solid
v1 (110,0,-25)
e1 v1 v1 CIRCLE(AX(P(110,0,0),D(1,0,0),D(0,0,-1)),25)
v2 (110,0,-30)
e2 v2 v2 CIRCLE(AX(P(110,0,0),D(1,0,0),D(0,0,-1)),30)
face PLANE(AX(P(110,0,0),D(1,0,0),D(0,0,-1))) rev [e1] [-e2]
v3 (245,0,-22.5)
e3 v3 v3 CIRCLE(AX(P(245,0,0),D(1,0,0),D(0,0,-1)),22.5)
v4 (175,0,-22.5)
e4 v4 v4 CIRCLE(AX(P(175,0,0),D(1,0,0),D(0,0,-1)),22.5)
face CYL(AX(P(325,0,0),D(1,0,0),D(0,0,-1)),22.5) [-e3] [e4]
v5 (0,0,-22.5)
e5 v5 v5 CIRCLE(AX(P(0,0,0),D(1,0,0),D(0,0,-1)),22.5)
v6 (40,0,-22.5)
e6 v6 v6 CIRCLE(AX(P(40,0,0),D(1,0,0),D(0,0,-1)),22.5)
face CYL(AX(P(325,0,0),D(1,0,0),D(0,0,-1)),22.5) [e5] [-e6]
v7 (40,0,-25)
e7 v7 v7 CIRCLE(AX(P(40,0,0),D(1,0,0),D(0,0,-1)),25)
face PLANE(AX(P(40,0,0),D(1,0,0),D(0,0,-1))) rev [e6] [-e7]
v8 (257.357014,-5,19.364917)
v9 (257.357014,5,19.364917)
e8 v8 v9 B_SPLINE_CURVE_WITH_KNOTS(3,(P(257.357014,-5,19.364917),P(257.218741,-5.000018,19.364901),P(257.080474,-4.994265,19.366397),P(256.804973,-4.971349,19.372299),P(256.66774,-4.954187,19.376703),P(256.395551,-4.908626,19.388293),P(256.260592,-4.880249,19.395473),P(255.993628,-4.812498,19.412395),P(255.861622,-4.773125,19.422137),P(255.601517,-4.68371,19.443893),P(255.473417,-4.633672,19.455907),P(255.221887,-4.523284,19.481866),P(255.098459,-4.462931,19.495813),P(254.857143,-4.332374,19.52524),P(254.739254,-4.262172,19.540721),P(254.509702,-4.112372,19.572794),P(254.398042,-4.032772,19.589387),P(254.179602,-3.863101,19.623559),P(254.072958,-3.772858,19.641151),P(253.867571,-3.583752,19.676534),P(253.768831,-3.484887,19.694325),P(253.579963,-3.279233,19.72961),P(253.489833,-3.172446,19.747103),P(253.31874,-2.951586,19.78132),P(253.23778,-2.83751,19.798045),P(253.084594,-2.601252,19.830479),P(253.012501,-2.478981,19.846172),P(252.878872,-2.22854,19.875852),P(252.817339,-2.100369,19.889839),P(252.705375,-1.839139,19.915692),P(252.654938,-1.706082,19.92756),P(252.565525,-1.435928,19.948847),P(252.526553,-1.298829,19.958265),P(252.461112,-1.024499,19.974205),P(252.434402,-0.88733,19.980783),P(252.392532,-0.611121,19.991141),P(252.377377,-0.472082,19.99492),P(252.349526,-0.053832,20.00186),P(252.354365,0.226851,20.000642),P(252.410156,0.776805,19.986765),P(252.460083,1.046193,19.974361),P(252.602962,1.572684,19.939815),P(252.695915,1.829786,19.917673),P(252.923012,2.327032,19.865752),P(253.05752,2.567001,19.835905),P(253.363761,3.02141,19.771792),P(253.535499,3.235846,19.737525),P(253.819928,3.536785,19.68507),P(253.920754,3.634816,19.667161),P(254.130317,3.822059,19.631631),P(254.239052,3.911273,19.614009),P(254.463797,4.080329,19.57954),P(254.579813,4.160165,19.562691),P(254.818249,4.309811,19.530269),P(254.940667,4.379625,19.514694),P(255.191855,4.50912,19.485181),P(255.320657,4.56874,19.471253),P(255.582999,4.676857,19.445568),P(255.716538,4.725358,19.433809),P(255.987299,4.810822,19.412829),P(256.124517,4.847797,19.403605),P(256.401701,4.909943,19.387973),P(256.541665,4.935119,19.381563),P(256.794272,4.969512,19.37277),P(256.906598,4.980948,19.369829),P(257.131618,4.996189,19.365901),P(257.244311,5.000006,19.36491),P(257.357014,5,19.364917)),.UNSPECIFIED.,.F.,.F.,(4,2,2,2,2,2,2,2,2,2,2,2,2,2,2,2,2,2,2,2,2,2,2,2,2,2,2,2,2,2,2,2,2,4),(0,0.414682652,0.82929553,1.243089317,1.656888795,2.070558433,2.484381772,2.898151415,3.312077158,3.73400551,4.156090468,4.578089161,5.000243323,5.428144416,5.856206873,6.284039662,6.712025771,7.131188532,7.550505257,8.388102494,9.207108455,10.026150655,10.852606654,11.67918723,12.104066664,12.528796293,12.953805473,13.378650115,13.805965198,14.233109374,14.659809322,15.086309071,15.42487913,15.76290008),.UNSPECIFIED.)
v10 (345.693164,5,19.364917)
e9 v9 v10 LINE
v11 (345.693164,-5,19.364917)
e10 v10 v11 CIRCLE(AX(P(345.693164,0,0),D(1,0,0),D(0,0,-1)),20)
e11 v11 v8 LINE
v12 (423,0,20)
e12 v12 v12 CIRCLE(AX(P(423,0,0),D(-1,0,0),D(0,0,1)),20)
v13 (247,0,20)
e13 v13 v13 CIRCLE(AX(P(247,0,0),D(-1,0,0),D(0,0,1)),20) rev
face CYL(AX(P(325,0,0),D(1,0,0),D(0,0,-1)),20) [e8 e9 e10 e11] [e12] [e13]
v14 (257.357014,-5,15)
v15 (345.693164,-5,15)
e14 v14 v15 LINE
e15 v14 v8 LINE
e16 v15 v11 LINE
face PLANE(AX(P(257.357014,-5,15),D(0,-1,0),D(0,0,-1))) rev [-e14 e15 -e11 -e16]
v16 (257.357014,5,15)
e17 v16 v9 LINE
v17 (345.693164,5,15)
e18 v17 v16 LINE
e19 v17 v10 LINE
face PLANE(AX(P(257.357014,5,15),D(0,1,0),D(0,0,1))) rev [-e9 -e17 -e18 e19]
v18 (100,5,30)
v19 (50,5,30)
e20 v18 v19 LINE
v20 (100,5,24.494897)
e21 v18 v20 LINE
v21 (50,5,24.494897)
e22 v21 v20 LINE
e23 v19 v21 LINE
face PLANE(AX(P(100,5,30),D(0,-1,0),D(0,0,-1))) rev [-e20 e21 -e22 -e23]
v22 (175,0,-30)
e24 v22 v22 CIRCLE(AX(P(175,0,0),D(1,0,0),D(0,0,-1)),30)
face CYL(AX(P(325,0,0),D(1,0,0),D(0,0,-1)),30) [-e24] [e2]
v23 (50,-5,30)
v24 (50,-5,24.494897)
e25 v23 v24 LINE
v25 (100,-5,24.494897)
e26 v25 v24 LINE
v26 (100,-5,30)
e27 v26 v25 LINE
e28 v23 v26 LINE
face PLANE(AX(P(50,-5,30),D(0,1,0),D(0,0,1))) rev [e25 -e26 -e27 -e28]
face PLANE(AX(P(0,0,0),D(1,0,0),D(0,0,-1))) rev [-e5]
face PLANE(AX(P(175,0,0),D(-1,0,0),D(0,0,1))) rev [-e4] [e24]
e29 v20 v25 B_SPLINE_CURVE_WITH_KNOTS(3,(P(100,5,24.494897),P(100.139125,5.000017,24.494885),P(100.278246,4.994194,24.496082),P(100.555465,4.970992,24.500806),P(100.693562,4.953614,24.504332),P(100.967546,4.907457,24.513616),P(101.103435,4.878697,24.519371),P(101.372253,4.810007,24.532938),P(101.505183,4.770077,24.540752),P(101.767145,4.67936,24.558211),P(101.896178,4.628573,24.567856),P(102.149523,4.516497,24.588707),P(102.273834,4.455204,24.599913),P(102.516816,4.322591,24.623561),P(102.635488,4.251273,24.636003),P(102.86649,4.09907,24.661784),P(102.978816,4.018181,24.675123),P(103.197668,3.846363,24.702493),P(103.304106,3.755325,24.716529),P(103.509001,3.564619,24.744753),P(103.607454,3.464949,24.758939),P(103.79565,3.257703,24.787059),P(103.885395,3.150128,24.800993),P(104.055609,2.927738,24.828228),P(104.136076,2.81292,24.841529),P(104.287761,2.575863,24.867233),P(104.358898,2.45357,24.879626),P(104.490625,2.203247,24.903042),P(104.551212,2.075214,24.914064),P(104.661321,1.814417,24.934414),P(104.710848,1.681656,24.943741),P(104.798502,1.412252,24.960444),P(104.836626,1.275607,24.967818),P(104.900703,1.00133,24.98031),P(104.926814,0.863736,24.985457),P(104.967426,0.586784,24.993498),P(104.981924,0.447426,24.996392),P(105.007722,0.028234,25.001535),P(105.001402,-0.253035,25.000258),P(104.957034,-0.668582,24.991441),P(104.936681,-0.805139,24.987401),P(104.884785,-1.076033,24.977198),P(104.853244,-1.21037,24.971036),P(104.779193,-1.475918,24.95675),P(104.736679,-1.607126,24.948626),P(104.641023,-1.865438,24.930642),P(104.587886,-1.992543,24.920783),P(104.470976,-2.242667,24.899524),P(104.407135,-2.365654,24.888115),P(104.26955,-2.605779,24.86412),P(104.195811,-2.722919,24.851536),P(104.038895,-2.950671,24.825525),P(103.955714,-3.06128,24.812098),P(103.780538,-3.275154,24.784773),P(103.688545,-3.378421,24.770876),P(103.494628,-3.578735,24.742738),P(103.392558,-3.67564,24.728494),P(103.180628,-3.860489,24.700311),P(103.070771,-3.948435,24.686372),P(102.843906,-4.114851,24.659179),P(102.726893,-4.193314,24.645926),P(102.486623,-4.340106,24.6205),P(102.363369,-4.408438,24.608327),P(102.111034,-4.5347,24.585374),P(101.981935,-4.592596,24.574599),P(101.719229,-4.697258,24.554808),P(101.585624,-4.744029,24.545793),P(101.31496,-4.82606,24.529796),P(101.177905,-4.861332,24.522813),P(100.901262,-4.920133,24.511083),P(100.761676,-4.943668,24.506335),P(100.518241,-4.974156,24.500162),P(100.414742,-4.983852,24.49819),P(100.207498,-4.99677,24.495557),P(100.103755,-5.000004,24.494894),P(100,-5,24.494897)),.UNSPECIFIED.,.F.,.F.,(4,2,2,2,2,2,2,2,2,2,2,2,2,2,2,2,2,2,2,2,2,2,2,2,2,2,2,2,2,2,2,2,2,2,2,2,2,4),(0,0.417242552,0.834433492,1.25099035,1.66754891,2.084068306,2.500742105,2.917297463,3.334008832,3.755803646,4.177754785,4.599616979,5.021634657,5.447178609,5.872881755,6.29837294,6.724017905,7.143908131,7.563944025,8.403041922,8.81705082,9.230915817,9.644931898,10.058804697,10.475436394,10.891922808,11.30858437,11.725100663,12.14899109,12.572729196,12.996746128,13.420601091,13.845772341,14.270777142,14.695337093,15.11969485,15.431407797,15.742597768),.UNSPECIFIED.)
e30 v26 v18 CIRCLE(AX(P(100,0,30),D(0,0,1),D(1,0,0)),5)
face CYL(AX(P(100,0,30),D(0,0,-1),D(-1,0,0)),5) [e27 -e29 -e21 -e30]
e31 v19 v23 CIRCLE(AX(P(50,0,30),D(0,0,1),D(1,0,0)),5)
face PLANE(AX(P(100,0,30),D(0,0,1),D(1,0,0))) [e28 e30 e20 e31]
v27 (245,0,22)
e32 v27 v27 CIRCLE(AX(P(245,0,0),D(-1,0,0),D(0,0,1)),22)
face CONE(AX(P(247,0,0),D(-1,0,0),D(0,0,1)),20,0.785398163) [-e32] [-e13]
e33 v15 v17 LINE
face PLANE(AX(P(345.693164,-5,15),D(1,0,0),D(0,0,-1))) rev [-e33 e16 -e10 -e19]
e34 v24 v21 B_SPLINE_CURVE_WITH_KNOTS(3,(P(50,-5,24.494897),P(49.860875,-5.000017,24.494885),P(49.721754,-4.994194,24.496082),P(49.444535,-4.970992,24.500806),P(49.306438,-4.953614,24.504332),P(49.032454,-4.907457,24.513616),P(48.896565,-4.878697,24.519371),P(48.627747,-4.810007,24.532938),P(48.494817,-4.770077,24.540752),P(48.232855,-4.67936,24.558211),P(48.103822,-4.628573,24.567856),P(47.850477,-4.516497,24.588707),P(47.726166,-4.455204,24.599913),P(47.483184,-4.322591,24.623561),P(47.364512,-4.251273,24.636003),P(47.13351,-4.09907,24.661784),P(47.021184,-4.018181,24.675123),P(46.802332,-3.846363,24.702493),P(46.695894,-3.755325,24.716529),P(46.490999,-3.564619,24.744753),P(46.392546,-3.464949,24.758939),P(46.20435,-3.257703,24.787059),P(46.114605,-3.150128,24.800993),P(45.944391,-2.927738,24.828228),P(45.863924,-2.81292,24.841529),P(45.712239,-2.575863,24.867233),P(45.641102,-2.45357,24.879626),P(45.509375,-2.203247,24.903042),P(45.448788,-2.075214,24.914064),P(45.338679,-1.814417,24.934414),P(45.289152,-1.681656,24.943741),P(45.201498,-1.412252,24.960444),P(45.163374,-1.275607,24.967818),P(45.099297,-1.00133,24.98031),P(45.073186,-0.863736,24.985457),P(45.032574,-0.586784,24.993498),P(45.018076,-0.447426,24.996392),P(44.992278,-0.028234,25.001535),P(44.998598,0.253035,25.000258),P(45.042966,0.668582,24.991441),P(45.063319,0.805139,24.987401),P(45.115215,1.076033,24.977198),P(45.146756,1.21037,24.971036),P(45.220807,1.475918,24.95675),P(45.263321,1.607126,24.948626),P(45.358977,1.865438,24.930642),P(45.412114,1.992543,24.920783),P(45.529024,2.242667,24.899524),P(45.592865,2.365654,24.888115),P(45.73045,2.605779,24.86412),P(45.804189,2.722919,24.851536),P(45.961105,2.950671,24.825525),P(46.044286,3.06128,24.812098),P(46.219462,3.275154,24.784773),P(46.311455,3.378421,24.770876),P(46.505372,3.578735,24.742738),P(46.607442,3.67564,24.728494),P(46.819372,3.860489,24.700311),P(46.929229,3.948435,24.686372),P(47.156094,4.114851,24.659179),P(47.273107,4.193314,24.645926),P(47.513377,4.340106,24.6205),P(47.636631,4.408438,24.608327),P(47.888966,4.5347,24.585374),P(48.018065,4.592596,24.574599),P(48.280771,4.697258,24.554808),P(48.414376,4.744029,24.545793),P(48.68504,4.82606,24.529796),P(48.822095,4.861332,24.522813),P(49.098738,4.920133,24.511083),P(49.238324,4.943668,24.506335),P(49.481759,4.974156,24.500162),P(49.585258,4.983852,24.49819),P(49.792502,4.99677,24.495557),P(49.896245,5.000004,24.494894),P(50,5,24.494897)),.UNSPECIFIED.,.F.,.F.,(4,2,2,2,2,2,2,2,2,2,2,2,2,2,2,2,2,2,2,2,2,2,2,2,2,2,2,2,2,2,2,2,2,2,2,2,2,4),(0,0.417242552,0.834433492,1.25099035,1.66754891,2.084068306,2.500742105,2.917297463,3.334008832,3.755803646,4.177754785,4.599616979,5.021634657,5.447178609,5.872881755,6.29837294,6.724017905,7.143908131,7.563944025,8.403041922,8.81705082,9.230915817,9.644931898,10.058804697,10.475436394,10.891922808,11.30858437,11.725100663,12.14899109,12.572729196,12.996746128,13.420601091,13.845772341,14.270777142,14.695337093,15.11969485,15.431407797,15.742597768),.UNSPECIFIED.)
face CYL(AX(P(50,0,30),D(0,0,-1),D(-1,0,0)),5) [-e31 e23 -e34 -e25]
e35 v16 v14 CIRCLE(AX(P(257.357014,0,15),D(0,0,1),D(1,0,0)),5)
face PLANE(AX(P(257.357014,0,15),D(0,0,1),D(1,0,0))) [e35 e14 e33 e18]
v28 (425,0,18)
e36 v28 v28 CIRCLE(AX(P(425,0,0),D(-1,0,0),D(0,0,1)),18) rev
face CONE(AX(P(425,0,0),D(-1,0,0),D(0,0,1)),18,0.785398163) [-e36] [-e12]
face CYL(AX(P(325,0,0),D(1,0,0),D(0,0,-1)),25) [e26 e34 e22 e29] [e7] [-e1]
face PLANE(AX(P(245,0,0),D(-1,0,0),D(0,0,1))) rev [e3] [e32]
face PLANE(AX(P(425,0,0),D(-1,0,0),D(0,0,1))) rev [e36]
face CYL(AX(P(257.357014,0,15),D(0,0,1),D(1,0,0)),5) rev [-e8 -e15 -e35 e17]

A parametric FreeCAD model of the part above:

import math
import FreeCAD as App
import Part
import Sketcher


def edges_at(feature, points):
    """Names of the edges that pass closest to the given points."""
    edges = feature.Shape.Edges
    near = lambda p: min(range(len(edges)), key=lambda i: edges[i].distToShape(Part.Vertex(*p))[0])
    return sorted({f"Edge{near(p) + 1}" for p in points})

doc = App.newDocument("Part")
body = doc.addObject("PartDesign::Body", "Body")

# Sketch on XZ plane
sketch1 = body.newObject("Sketcher::SketchObject", "Sketch")
sketch1.AttachmentSupport = (doc.getObject("XZ_Plane"), [""])
sketch1.MapMode = "FlatFace"
sketch1.addGeometry([
    Part.LineSegment(App.Vector(425, 0, 0), App.Vector(425, -20, 0)),  # 0
    Part.LineSegment(App.Vector(425, -20, 0), App.Vector(245, -20, 0)),  # 1
    Part.LineSegment(App.Vector(245, -20, 0), App.Vector(245, -22.5, 0)),  # 2
    Part.LineSegment(App.Vector(245, -22.5, 0), App.Vector(175, -22.5, 0)),  # 3
    Part.LineSegment(App.Vector(175, -22.5, 0), App.Vector(175, -30, 0)),  # 4
    Part.LineSegment(App.Vector(175, -30, 0), App.Vector(110, -30, 0)),  # 5
    Part.LineSegment(App.Vector(110, -30, 0), App.Vector(110, -25, 0)),  # 6
    Part.LineSegment(App.Vector(110, -25, 0), App.Vector(40, -25, 0)),  # 7
    Part.LineSegment(App.Vector(40, -25, 0), App.Vector(40, -22.5, 0)),  # 8
    Part.LineSegment(App.Vector(40, -22.5, 0), App.Vector(0, -22.5, 0)),  # 9
    Part.LineSegment(App.Vector(0, -22.5, 0), App.Vector(0, 0, 0)),  # 10
    Part.LineSegment(App.Vector(0, 0, 0), App.Vector(425, 0, 0)),  # 11
], False)
sketch1.addConstraint([
    Sketcher.Constraint("Coincident", 0, 2, 1, 1),
    Sketcher.Constraint("Coincident", 1, 2, 2, 1),
    Sketcher.Constraint("Coincident", 2, 2, 3, 1),
    Sketcher.Constraint("Coincident", 3, 2, 4, 1),
    Sketcher.Constraint("Coincident", 4, 2, 5, 1),
    Sketcher.Constraint("Coincident", 5, 2, 6, 1),
    Sketcher.Constraint("Coincident", 6, 2, 7, 1),
    Sketcher.Constraint("Coincident", 7, 2, 8, 1),
    Sketcher.Constraint("Coincident", 8, 2, 9, 1),
    Sketcher.Constraint("Coincident", 9, 2, 10, 1),
    Sketcher.Constraint("Coincident", 10, 2, 11, 1),
    Sketcher.Constraint("Coincident", 11, 2, 0, 1),
    Sketcher.Constraint("Vertical", 0),
    Sketcher.Constraint("Horizontal", 1),
    Sketcher.Constraint("Vertical", 2),
    Sketcher.Constraint("Horizontal", 3),
    Sketcher.Constraint("Vertical", 4),
    Sketcher.Constraint("Horizontal", 5),
    Sketcher.Constraint("Vertical", 6),
    Sketcher.Constraint("Horizontal", 7),
    Sketcher.Constraint("Vertical", 8),
    Sketcher.Constraint("Horizontal", 9),
    Sketcher.Constraint("Vertical", 10),
    Sketcher.Constraint("Horizontal", 11),
    Sketcher.Constraint("Coincident", 10, 2, -1, 1),
    Sketcher.Constraint("Horizontal", 3, 2, 8, 2),
    Sketcher.Constraint("Equal", 3, 7),
    Sketcher.Constraint("Equal", 2, 8),
    Sketcher.Constraint("DistanceX", 1, 2, 1, 1, 180.0),
    Sketcher.Constraint("DistanceX", 3, 2, 3, 1, 70.0),
    Sketcher.Constraint("DistanceX", 5, 2, 5, 1, 65.0),
    Sketcher.Constraint("DistanceX", 9, 2, 9, 1, 40.0),
    Sketcher.Constraint("DistanceY", 0, 2, 0, 1, 20.0),
    Sketcher.Constraint("DistanceY", 6, 1, 6, 2, 5.0),
    Sketcher.Constraint("DistanceY", 2, 2, 2, 1, 2.5),
])
revolution = body.newObject("PartDesign::Revolution", "Revolution")
revolution.Profile = sketch1
revolution.ReferenceAxis = (sketch1, ["H_Axis"])
revolution.Angle = 360
doc.recompute()

chamfer = body.newObject("PartDesign::Chamfer", "Chamfer")
chamfer.Base = (revolution, edges_at(revolution, [(425, 0, 20), (245, 0, 20)]))
chamfer.Size = 2

# Sketch on XY plane
sketch2 = body.newObject("Sketcher::SketchObject", "Sketch001")
sketch2.AttachmentSupport = (doc.getObject("XY_Plane"), [""])
sketch2.MapMode = "FlatFace"
sketch2.AttachmentOffset = App.Placement(App.Vector(0, 0, 20), App.Rotation())
sketch2.addGeometry([
    Part.LineSegment(App.Vector(257, -5, 0), App.Vector(346, -5, 0)),
    Part.LineSegment(App.Vector(346, -5, 0), App.Vector(346, 5, 0)),
    Part.LineSegment(App.Vector(346, 5, 0), App.Vector(257, 5, 0)),
    Part.ArcOfCircle(Part.Circle(App.Vector(257, 0, 0), App.Vector(0, 0, 1), 5), math.radians(90), math.radians(270)),
], False)
sketch2.addConstraint([
    Sketcher.Constraint("Coincident", 0, 2, 1, 1),
    Sketcher.Constraint("Coincident", 1, 2, 2, 1),
    Sketcher.Constraint("Tangent", 2, 2, 3, 1),
    Sketcher.Constraint("Tangent", 3, 2, 0, 1),
    Sketcher.Constraint("Horizontal", 0),
    Sketcher.Constraint("Vertical", 1),
    Sketcher.Constraint("Horizontal", 2),
    Sketcher.Constraint("PointOnObject", 3, 3, -1),
    Sketcher.Constraint("Radius", 3, 5.0),
    Sketcher.Constraint("DistanceX", 0, 1, 0, 2, 88.336149),
    Sketcher.Constraint("DistanceX", -1, 1, 3, 3, 257.357014),
])
pocket1 = body.newObject("PartDesign::Pocket", "Pocket")
pocket1.Profile = sketch2
pocket1.Length = 5

# Sketch on XY plane
sketch3 = body.newObject("Sketcher::SketchObject", "Sketch002")
sketch3.AttachmentSupport = (doc.getObject("XY_Plane"), [""])
sketch3.MapMode = "FlatFace"
sketch3.AttachmentOffset = App.Placement(App.Vector(0, 0, 25), App.Rotation())
sketch3.addGeometry([
    Part.LineSegment(App.Vector(100, 5, 0), App.Vector(50, 5, 0)),
    Part.ArcOfCircle(Part.Circle(App.Vector(50, 0, 0), App.Vector(0, 0, 1), 5), math.radians(90), math.radians(270)),
    Part.LineSegment(App.Vector(50, -5, 0), App.Vector(100, -5, 0)),
    Part.ArcOfCircle(Part.Circle(App.Vector(100, 0, 0), App.Vector(0, 0, 1), 5), math.radians(-90), math.radians(90)),
], False)
sketch3.addConstraint([
    Sketcher.Constraint("Tangent", 0, 2, 1, 1),
    Sketcher.Constraint("Tangent", 1, 2, 2, 1),
    Sketcher.Constraint("Tangent", 2, 2, 3, 1),
    Sketcher.Constraint("Tangent", 3, 2, 0, 1),
    Sketcher.Constraint("Horizontal", 0),
    Sketcher.Constraint("Horizontal", 2),
    Sketcher.Constraint("PointOnObject", 1, 3, -1),
    Sketcher.Constraint("Radius", 1, 5.0),
    Sketcher.Constraint("DistanceX", 0, 2, 0, 1, 50.0),
    Sketcher.Constraint("DistanceX", -1, 1, 1, 3, 50.0),
])
pocket2 = body.newObject("PartDesign::Pocket", "Pocket001")
pocket2.Profile = sketch3
pocket2.Length = 5

# Sketch on XY plane
sketch4 = body.newObject("Sketcher::SketchObject", "Sketch003")
sketch4.AttachmentSupport = (doc.getObject("XY_Plane"), [""])
sketch4.MapMode = "FlatFace"
sketch4.AttachmentOffset = App.Placement(App.Vector(0, 0, 20), App.Rotation())
sketch4.addGeometry([
    Part.LineSegment(App.Vector(100, 5, 0), App.Vector(50, 5, 0)),
    Part.ArcOfCircle(Part.Circle(App.Vector(50, 0, 0), App.Vector(0, 0, 1), 5), math.radians(90), math.radians(270)),
    Part.LineSegment(App.Vector(50, -5, 0), App.Vector(100, -5, 0)),
    Part.ArcOfCircle(Part.Circle(App.Vector(100, 0, 0), App.Vector(0, 0, 1), 5), math.radians(-90), math.radians(90)),
], False)
sketch4.addConstraint([
    Sketcher.Constraint("Tangent", 0, 2, 1, 1),
    Sketcher.Constraint("Tangent", 1, 2, 2, 1),
    Sketcher.Constraint("Tangent", 2, 2, 3, 1),
    Sketcher.Constraint("Tangent", 3, 2, 0, 1),
    Sketcher.Constraint("Horizontal", 0),
    Sketcher.Constraint("Horizontal", 2),
    Sketcher.Constraint("PointOnObject", 1, 3, -1),
    Sketcher.Constraint("Radius", 1, 5.0),
    Sketcher.Constraint("DistanceX", 0, 2, 0, 1, 50.0),
    Sketcher.Constraint("DistanceX", -1, 1, 1, 3, 50.0),
])
pad1 = body.newObject("PartDesign::Pad", "Pad")
pad1.Profile = sketch4
pad1.Length = 10

doc.recompute()
